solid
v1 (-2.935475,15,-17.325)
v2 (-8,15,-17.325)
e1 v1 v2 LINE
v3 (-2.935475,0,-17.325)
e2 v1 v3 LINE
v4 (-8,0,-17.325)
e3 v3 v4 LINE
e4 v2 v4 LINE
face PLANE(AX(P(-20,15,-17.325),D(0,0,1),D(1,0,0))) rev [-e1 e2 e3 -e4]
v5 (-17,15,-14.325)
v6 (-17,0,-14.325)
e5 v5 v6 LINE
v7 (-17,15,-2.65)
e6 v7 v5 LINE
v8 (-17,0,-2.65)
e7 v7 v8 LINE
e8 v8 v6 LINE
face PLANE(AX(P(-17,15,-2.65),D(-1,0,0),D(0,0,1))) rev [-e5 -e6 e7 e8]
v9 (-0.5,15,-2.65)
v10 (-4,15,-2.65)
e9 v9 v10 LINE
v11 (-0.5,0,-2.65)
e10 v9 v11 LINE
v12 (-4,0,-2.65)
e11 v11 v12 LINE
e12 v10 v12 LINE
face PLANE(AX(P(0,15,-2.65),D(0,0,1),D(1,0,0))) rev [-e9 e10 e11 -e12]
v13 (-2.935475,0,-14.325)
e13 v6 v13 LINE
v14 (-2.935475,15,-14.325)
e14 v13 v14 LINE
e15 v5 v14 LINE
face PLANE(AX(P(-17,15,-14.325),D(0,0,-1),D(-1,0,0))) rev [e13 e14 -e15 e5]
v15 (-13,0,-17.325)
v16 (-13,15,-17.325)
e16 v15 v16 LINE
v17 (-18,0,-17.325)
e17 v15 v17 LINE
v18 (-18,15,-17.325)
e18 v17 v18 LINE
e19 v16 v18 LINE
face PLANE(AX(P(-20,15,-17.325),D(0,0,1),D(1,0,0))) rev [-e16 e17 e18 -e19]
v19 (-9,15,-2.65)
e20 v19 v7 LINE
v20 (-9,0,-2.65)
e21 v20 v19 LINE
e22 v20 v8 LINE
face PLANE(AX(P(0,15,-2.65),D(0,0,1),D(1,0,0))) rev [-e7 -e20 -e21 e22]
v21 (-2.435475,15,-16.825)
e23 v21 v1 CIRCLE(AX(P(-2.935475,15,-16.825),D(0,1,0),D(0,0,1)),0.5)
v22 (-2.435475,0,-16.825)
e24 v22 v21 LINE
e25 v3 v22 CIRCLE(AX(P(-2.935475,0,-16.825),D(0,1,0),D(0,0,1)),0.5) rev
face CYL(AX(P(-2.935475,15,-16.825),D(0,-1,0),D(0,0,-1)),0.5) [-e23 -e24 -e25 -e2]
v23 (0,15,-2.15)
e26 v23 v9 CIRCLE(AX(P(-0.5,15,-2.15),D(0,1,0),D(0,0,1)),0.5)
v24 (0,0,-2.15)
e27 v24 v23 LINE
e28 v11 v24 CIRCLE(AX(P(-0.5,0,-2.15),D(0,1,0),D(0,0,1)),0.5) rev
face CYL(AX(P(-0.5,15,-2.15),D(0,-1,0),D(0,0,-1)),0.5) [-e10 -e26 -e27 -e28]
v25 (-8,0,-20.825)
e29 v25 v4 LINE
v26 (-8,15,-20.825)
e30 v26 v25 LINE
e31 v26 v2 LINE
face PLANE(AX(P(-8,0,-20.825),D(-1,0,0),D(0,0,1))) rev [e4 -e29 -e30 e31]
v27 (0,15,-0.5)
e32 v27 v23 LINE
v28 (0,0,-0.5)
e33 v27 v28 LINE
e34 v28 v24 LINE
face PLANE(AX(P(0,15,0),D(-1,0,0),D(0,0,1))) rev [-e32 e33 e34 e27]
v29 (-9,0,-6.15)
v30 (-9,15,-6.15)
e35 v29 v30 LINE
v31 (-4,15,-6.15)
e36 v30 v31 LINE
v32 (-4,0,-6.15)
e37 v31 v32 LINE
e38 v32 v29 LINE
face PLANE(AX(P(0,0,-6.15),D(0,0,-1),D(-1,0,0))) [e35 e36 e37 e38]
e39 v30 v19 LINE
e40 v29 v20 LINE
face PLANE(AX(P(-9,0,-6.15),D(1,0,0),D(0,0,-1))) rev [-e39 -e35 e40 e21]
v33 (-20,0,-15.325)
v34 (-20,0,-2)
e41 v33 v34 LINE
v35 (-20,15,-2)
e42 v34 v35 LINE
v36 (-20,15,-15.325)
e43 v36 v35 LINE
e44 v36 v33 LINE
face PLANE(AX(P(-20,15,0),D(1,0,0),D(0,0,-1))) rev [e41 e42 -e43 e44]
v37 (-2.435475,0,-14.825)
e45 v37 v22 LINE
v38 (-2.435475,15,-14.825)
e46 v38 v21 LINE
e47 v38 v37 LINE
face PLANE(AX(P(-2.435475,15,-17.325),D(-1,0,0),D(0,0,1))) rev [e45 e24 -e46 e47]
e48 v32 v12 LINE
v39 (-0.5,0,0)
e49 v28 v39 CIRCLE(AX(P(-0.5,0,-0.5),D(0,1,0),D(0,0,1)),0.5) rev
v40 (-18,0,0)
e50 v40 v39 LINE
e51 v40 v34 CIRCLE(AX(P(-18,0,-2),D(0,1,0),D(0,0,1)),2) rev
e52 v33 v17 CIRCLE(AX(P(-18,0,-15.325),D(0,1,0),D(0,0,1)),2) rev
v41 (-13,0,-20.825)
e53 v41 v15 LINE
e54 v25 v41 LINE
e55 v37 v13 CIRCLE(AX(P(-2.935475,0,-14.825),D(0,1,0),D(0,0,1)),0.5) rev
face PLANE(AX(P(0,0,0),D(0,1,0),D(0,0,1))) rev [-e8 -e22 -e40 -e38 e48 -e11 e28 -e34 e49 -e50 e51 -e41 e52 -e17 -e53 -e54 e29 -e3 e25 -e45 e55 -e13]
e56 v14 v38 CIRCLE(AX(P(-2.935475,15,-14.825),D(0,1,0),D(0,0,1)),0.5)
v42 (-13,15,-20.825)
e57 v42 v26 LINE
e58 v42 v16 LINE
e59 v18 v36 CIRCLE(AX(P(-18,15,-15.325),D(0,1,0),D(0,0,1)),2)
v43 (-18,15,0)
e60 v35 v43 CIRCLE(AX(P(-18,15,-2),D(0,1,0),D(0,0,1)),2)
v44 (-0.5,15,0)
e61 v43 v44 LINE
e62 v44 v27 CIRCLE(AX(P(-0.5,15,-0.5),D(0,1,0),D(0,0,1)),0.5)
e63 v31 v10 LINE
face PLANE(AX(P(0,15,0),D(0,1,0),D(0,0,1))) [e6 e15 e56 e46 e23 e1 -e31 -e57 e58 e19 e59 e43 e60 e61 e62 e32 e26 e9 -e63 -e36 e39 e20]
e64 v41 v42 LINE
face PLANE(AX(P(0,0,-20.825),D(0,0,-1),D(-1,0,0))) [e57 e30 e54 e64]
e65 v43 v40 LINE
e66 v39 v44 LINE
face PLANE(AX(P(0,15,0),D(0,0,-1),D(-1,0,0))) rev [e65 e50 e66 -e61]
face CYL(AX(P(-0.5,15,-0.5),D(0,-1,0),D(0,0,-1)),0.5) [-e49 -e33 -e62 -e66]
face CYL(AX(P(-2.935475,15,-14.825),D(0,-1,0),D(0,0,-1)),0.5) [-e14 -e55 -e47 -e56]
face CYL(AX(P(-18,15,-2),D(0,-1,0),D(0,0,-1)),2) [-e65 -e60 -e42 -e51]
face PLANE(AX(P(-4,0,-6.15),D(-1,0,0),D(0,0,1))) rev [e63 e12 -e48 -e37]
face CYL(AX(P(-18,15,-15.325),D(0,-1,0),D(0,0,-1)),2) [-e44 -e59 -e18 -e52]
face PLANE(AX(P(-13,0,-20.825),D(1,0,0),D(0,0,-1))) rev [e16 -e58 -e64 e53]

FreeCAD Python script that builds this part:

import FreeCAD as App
import Part
import Sketcher

V = App.Vector
Q = App.Units.Quantity


def edges_at(feature, points):
    """Names of the edges that pass closest to the given points."""
    edges = feature.Shape.Edges
    near = lambda p: min(range(len(edges)), key=lambda i: edges[i].distToShape(Part.Vertex(*p))[0])
    return sorted({f"Edge{near(p) + 1}" for p in points})

doc = App.newDocument("Part")
params = doc.addObject("Spreadsheet::Sheet", "Params")
for row, (alias, value) in enumerate([
    ("sketch1_width", "20 mm"),
    ("sketch1_width2", "17 mm"),
    ("sketch1_height", "3 mm"),
    ("sketch1_height2", "2.65 mm"),
    ("pad1_length", "15 mm"),
    ("sketch2_width", "5 mm"),
    ("sketch2_height", "15 mm"),
    ("pad2_length", "3.5 mm"),
    ("sketch3_width", "5 mm"),
    ("sketch3_height", "15 mm"),
    ("pad3_length", "3.5 mm"),
    ("fillet_radius", "2 mm"),
    ("fillet2_radius", "0.5 mm"),
], start=1):
    params.set(f"A{row}", alias)
    params.set(f"B{row}", "=" + value)
    params.setAlias(f"B{row}", alias)

body = doc.addObject("PartDesign::Body", "Body")

sketch1 = body.newObject("Sketcher::SketchObject", "Sketch")
sketch1.AttachmentSupport = (doc.getObject("XZ_Plane"), [""])
sketch1.MapMode = "FlatFace"
sketch1.addGeometry([
    Part.LineSegment(V(-20, 0, 0), V(0, 0, 0)),
    Part.LineSegment(V(0, 0, 0), V(0, -2.65, 0)),
    Part.LineSegment(V(0, -2.65, 0), V(-17, -2.65, 0)),
    Part.LineSegment(V(-17, -2.65, 0), V(-17, -14.325, 0)),
    Part.LineSegment(V(-17, -14.325, 0), V(-2.435475, -14.325, 0)),
    Part.LineSegment(V(-2.435475, -14.325, 0), V(-2.435475, -17.325, 0)),
    Part.LineSegment(V(-2.435475, -17.325, 0), V(-20, -17.325, 0)),
    Part.LineSegment(V(-20, -17.325, 0), V(-20, 0, 0)),
], False)
sketch1.addConstraint([
    Sketcher.Constraint("Coincident", 0, 2, 1, 1),
    Sketcher.Constraint("Coincident", 1, 2, 2, 1),
    Sketcher.Constraint("Coincident", 2, 2, 3, 1),
    Sketcher.Constraint("Coincident", 3, 2, 4, 1),
    Sketcher.Constraint("Coincident", 4, 2, 5, 1),
    Sketcher.Constraint("Coincident", 5, 2, 6, 1),
    Sketcher.Constraint("Coincident", 6, 2, 7, 1),
    Sketcher.Constraint("Coincident", 7, 2, 0, 1),
    Sketcher.Constraint("Horizontal", 0),
    Sketcher.Constraint("Vertical", 1),
    Sketcher.Constraint("Horizontal", 2),
    Sketcher.Constraint("Vertical", 3),
    Sketcher.Constraint("Horizontal", 4),
    Sketcher.Constraint("Vertical", 5),
    Sketcher.Constraint("Horizontal", 6),
    Sketcher.Constraint("Vertical", 7),
    Sketcher.Constraint("Coincident", 0, 2, -1, 1),
    Sketcher.Constraint("DistanceX", 0, 1, 0, 2, Q("20 mm")),
    Sketcher.Constraint("DistanceX", 2, 2, 2, 1, Q("17 mm")),
    Sketcher.Constraint("DistanceY", 5, 2, 5, 1, Q("3 mm")),
    Sketcher.Constraint("DistanceY", 1, 2, 1, 1, Q("2.65 mm")),
    Sketcher.Constraint("DistanceY", 3, 2, 3, 1, Q("11.675 mm")),
    Sketcher.Constraint("DistanceX", 4, 1, 4, 2, Q("14.564525 mm")),
])
sketch1.setExpression("Constraints[17]", "Params.sketch1_width")
sketch1.setExpression("Constraints[18]", "Params.sketch1_width2")
sketch1.setExpression("Constraints[19]", "Params.sketch1_height")
sketch1.setExpression("Constraints[20]", "Params.sketch1_height2")
pad1 = body.newObject("PartDesign::Pad", "Pad")
pad1.Profile = sketch1
pad1.setExpression("Length", "Params.pad1_length")
pad1.Reversed = True

sketch2 = body.newObject("Sketcher::SketchObject", "Sketch001")
sketch2.AttachmentSupport = (doc.getObject("XY_Plane"), [""])
sketch2.MapMode = "FlatFace"
sketch2.AttachmentOffset = App.Placement(V(0, 0, -2.65), App.Rotation())
sketch2.addGeometry([
    Part.LineSegment(V(-4, 15, 0), V(-4, 0, 0)),
    Part.LineSegment(V(-4, 0, 0), V(-9, 0, 0)),
    Part.LineSegment(V(-9, 0, 0), V(-9, 15, 0)),
    Part.LineSegment(V(-9, 15, 0), V(-4, 15, 0)),
], False)
sketch2.addConstraint([
    Sketcher.Constraint("Coincident", 0, 2, 1, 1),
    Sketcher.Constraint("Coincident", 1, 2, 2, 1),
    Sketcher.Constraint("Coincident", 2, 2, 3, 1),
    Sketcher.Constraint("Coincident", 3, 2, 0, 1),
    Sketcher.Constraint("Vertical", 0),
    Sketcher.Constraint("Horizontal", 1),
    Sketcher.Constraint("Vertical", 2),
    Sketcher.Constraint("Horizontal", 3),
    Sketcher.Constraint("PointOnObject", 0, 2, -1),
    Sketcher.Constraint("DistanceX", 1, 2, 1, 1, Q("5 mm")),
    Sketcher.Constraint("DistanceY", 0, 2, 0, 1, Q("15 mm")),
    Sketcher.Constraint("DistanceX", 0, 2, -1, 1, Q("4 mm")),
])
sketch2.setExpression("Constraints[9]", "Params.sketch2_width")
sketch2.setExpression("Constraints[10]", "Params.sketch2_height")
pad2 = body.newObject("PartDesign::Pad", "Pad001")
pad2.Profile = sketch2
pad2.setExpression("Length", "Params.pad2_length")
pad2.Reversed = True

sketch3 = body.newObject("Sketcher::SketchObject", "Sketch002")
sketch3.AttachmentSupport = (doc.getObject("XY_Plane"), [""])
sketch3.MapMode = "FlatFace"
sketch3.AttachmentOffset = App.Placement(V(0, 0, -17.325), App.Rotation())
sketch3.addGeometry([
    Part.LineSegment(V(-8, 15, 0), V(-8, 0, 0)),
    Part.LineSegment(V(-8, 0, 0), V(-13, 0, 0)),
    Part.LineSegment(V(-13, 0, 0), V(-13, 15, 0)),
    Part.LineSegment(V(-13, 15, 0), V(-8, 15, 0)),
], False)
sketch3.addConstraint([
    Sketcher.Constraint("Coincident", 0, 2, 1, 1),
    Sketcher.Constraint("Coincident", 1, 2, 2, 1),
    Sketcher.Constraint("Coincident", 2, 2, 3, 1),
    Sketcher.Constraint("Coincident", 3, 2, 0, 1),
    Sketcher.Constraint("Vertical", 0),
    Sketcher.Constraint("Horizontal", 1),
    Sketcher.Constraint("Vertical", 2),
    Sketcher.Constraint("Horizontal", 3),
    Sketcher.Constraint("PointOnObject", 0, 2, -1),
    Sketcher.Constraint("DistanceX", 1, 2, 1, 1, Q("5 mm")),
    Sketcher.Constraint("DistanceY", 0, 2, 0, 1, Q("15 mm")),
    Sketcher.Constraint("DistanceX", 0, 2, -1, 1, Q("8 mm")),
])
sketch3.setExpression("Constraints[9]", "Params.sketch3_width")
sketch3.setExpression("Constraints[10]", "Params.sketch3_height")
pad3 = body.newObject("PartDesign::Pad", "Pad002")
pad3.Profile = sketch3
pad3.setExpression("Length", "Params.pad3_length")
pad3.Reversed = True
doc.recompute()

fillet = body.newObject("PartDesign::Fillet", "Fillet")
fillet.Base = (pad3, edges_at(pad3, [(-20, 7.5, 0), (-20, 7.5, -17.325)]))
fillet.setExpression("Radius", "Params.fillet_radius")
doc.recompute()

fillet2 = body.newObject("PartDesign::Fillet", "Fillet001")
fillet2.Base = (fillet, edges_at(fillet, [
    (0, 7.5, 0),
    (-2.435, 7.5, -17.325),
    (-2.435, 7.5, -14.325),
    (0, 7.5, -2.65),
]))
fillet2.setExpression("Radius", "Params.fillet2_radius")

doc.recompute()
